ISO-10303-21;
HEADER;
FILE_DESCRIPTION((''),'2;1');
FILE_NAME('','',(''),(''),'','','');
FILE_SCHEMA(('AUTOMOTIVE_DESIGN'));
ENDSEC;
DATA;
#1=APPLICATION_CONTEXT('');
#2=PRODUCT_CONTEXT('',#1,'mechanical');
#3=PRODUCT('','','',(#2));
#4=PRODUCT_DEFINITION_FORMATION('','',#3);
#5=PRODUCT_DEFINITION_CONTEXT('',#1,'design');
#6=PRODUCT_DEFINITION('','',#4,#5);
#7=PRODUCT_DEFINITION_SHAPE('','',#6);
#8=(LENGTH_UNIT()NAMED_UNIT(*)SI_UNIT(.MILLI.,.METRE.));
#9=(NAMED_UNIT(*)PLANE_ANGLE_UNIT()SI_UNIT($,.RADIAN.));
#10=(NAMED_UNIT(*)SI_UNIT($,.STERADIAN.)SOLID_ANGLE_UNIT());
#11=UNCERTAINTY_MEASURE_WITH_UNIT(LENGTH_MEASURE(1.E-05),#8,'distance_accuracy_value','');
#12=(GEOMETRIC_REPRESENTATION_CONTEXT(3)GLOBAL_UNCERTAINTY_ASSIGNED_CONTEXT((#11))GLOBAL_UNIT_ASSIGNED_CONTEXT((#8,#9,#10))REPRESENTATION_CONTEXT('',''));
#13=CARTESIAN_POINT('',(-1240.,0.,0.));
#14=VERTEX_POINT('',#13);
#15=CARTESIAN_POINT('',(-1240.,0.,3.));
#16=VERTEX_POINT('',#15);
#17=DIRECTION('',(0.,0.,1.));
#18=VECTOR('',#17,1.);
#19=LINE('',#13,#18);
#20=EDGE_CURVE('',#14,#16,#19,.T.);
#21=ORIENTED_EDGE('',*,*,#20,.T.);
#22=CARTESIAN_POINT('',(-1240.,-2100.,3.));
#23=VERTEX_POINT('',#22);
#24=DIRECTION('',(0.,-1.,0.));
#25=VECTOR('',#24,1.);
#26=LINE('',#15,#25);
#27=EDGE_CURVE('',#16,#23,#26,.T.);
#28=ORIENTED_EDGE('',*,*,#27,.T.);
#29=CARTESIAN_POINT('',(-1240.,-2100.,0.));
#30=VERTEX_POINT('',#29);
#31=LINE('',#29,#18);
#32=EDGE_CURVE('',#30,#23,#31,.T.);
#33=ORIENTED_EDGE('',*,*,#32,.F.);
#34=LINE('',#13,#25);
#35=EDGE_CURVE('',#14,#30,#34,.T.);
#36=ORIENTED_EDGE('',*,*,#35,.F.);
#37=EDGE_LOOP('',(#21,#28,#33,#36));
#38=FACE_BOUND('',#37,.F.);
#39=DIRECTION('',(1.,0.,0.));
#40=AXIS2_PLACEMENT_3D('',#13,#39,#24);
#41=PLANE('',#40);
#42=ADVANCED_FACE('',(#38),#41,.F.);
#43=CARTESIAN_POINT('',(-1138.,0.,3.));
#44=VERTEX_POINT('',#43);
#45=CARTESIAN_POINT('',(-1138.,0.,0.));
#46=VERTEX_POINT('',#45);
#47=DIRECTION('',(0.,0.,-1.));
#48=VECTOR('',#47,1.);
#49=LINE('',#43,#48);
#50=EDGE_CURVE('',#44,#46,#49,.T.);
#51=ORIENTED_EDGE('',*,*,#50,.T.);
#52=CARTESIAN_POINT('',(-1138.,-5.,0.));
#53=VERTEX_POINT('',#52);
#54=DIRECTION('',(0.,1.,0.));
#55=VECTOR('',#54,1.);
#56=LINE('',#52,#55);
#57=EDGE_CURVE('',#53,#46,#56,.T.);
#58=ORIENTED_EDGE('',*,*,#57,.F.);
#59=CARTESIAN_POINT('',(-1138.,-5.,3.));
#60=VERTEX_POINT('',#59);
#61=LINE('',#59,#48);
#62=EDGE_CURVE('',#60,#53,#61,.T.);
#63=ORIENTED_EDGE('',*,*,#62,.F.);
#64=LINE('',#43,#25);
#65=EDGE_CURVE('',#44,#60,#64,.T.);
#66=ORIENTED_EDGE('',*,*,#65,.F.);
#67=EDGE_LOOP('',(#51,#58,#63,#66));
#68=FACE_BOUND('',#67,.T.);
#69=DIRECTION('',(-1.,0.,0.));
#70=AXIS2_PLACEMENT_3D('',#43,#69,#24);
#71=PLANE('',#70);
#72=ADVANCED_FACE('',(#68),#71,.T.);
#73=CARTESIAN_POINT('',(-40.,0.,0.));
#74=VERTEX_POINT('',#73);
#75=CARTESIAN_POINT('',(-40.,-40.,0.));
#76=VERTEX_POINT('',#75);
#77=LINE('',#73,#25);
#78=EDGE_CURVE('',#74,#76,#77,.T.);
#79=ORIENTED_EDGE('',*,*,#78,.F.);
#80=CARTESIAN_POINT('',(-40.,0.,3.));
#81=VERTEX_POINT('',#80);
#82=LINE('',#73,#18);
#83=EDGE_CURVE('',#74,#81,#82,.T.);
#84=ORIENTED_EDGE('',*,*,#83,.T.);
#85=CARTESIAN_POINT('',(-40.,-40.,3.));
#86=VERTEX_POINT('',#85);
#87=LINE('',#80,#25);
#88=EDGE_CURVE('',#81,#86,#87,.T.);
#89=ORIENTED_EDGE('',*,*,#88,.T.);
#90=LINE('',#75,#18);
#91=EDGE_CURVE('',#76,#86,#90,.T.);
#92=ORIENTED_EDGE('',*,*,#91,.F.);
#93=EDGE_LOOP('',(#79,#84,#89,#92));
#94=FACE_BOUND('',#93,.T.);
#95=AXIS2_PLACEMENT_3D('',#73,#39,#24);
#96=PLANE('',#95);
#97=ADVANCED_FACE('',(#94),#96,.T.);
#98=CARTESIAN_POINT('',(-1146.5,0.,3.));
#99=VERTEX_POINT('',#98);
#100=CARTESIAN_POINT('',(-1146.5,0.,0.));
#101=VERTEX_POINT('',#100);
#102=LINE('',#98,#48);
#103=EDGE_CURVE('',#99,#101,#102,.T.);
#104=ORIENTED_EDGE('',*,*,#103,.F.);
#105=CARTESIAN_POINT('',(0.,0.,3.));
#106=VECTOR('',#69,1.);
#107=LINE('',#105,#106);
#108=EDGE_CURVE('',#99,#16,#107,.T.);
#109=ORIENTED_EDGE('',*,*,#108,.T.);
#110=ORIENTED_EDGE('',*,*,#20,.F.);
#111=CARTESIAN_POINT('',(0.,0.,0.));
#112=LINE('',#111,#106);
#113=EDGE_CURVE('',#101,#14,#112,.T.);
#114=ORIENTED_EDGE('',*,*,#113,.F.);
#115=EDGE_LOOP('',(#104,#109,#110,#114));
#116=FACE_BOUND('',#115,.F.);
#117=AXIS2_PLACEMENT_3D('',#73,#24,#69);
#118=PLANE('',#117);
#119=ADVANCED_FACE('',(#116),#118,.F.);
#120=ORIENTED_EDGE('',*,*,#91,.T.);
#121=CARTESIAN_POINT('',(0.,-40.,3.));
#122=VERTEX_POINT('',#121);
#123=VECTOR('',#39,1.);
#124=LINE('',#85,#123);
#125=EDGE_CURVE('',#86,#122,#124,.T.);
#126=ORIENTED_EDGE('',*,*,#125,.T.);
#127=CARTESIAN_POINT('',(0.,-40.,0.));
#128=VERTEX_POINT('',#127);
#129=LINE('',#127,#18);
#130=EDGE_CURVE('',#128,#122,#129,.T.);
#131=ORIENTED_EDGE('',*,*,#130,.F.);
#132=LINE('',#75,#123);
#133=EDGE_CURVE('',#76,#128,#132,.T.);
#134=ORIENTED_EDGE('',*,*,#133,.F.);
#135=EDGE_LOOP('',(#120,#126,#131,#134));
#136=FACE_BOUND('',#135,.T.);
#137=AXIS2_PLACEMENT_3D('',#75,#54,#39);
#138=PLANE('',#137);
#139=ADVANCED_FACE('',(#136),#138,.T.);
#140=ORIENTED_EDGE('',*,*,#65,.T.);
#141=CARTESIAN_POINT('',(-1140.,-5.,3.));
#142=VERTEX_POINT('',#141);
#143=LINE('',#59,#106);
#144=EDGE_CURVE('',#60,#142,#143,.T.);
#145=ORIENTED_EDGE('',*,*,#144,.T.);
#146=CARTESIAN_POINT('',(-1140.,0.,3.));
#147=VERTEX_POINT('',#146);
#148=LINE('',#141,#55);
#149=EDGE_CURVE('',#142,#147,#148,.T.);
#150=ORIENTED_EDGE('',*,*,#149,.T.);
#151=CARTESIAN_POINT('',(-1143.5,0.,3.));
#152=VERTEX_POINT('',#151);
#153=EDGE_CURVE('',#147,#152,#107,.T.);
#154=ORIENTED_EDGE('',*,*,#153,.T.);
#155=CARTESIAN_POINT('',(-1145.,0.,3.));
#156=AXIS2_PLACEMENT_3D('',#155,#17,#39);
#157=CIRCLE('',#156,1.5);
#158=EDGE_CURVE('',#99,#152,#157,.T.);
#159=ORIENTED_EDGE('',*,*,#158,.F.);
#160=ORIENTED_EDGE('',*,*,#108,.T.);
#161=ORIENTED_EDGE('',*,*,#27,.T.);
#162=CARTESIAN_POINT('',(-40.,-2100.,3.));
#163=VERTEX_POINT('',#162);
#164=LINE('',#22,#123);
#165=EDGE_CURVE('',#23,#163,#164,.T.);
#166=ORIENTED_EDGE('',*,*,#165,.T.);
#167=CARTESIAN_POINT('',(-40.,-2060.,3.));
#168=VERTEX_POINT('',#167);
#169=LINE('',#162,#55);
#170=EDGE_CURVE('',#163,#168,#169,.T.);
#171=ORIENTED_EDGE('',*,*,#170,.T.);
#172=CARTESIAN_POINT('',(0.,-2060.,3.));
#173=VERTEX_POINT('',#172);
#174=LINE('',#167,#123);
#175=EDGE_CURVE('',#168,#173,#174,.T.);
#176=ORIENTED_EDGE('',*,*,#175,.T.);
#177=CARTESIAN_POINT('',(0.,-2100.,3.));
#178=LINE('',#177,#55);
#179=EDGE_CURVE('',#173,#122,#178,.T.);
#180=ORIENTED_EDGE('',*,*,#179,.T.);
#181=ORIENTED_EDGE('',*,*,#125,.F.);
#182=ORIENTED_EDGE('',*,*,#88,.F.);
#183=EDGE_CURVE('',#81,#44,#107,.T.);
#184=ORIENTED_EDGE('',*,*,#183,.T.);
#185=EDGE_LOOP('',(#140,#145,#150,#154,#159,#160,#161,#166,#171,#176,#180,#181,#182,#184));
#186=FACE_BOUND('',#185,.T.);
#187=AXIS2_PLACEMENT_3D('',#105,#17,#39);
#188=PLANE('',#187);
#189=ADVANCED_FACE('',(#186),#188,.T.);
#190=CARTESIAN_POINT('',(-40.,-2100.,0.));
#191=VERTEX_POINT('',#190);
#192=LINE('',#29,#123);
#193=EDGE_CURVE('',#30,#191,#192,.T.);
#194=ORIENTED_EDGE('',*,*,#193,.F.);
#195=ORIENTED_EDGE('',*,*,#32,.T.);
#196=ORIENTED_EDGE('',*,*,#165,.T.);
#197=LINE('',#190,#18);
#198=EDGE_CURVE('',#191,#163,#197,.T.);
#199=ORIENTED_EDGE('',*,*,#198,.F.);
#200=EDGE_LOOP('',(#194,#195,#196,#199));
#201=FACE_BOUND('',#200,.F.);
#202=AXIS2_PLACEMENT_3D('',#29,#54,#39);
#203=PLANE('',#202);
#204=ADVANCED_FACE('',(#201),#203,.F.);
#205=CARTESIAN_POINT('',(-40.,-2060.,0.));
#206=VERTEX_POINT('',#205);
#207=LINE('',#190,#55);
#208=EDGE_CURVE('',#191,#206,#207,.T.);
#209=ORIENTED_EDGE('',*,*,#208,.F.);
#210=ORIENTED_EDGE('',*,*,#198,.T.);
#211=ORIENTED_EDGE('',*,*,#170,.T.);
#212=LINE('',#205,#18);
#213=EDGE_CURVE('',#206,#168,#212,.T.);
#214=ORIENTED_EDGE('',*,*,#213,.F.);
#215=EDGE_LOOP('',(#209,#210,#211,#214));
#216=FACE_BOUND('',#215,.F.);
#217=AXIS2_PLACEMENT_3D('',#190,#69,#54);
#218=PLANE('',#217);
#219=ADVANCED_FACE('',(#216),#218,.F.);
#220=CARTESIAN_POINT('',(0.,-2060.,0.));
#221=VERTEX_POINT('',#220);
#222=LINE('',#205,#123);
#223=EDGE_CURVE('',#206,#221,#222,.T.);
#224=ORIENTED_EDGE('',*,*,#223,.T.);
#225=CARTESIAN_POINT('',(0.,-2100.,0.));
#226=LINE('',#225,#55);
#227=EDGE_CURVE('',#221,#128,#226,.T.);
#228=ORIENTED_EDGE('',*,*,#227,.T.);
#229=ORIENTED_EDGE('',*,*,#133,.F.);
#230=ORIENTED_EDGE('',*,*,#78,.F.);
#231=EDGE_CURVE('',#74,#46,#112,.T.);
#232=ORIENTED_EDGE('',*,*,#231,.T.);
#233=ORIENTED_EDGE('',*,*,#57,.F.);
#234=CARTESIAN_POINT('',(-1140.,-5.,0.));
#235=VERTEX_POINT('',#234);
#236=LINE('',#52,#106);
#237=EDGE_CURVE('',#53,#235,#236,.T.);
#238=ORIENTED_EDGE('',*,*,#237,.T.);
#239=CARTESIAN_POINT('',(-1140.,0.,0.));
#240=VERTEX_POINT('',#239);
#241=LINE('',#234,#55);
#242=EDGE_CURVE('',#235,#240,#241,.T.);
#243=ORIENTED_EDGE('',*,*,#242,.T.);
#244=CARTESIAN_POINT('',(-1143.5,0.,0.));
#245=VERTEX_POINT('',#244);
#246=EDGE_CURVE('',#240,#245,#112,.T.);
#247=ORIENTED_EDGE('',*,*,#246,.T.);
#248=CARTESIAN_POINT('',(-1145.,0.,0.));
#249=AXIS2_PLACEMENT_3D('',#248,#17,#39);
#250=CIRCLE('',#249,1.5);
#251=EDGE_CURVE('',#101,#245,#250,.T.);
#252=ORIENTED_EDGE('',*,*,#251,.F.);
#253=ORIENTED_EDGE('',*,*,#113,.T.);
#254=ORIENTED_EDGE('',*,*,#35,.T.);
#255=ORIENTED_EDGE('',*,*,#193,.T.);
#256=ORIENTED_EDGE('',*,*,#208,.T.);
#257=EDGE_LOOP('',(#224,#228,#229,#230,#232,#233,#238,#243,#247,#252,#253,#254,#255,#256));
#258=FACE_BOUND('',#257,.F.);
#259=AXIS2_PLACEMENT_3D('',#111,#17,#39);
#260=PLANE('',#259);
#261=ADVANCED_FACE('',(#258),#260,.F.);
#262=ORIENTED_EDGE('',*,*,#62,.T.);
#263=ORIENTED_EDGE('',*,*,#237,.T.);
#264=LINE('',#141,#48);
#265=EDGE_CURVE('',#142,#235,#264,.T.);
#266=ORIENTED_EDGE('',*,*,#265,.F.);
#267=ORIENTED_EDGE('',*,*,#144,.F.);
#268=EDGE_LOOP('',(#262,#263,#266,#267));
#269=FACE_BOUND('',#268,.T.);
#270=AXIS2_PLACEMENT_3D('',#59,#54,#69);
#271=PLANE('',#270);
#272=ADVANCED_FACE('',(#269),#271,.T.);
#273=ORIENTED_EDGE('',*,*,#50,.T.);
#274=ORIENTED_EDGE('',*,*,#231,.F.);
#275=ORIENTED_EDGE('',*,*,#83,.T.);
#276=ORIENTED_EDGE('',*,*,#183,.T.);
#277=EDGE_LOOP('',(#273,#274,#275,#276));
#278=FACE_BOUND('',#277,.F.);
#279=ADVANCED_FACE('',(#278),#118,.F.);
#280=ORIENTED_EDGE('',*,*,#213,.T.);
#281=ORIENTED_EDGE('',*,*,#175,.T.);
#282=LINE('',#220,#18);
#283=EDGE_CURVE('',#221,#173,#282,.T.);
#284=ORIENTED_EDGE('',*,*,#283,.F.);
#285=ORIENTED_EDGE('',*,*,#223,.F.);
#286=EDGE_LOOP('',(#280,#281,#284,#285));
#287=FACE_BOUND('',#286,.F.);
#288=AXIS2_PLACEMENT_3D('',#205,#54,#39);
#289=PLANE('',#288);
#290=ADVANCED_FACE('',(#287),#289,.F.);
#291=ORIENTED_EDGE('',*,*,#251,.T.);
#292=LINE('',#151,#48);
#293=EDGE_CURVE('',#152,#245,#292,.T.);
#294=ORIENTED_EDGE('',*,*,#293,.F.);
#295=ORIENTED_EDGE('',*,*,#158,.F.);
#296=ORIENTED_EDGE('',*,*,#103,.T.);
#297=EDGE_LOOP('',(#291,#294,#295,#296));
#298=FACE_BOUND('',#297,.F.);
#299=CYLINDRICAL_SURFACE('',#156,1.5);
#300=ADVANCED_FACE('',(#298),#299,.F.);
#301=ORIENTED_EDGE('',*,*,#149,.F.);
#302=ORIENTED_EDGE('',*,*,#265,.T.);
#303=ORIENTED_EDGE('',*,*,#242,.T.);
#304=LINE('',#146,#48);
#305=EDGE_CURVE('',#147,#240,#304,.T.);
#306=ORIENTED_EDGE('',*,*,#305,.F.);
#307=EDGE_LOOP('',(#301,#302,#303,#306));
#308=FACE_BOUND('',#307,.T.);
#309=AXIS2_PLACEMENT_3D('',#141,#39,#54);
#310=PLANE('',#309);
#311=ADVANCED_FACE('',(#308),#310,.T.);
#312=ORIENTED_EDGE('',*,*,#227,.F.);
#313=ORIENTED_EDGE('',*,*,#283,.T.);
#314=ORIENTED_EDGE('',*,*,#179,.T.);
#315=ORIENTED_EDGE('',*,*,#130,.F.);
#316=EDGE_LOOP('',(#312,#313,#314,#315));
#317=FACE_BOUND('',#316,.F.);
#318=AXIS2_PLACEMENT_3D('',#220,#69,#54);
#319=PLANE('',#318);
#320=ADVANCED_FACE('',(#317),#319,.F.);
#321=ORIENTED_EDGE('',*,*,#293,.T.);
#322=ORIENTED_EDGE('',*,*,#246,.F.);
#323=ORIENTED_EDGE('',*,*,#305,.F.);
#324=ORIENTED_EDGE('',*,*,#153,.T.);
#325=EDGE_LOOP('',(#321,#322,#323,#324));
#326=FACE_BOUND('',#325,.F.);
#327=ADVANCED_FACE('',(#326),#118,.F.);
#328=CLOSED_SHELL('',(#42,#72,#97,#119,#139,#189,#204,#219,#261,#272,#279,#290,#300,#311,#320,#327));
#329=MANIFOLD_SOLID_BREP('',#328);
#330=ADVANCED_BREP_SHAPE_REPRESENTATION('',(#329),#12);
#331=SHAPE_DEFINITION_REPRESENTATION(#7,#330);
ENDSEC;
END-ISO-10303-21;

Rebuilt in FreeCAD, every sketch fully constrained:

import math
import FreeCAD as App
import Part
import Sketcher

V = App.Vector
Q = App.Units.Quantity

doc = App.newDocument("Part")
params = doc.addObject("Spreadsheet::Sheet", "Params")
for row, (alias, value) in enumerate([
    ("sketch1_width", "40 mm"),
    ("sketch1_height", "2100 mm"),
    ("pad1_length", "3 mm"),
    ("sketch2_radius", "1.5 mm"),
    ("sketch2_width", "2 mm"),
    ("sketch2_height", "5 mm"),
    ("pocket1_length", "3 mm"),
], start=1):
    params.set(f"A{row}", alias)
    params.set(f"B{row}", "=" + value)
    params.setAlias(f"B{row}", alias)

body = doc.addObject("PartDesign::Body", "Body")

sketch1 = body.newObject("Sketcher::SketchObject", "Sketch")
sketch1.AttachmentSupport = (doc.getObject("XY_Plane"), [""])
sketch1.MapMode = "FlatFace"
sketch1.addGeometry(Part.LineSegment(V(-40, -40, 0), V(-40, 0, 0)), False)
sketch1.addGeometry(Part.LineSegment(V(-40, 0, 0), V(-1240, 0, 0)), False)
sketch1.addGeometry(Part.LineSegment(V(-1240, 0, 0), V(-1240, -2100, 0)), False)
sketch1.addGeometry(Part.LineSegment(V(-1240, -2100, 0), V(-40, -2100, 0)), False)
sketch1.addGeometry(Part.LineSegment(V(-40, -2100, 0), V(-40, -2060, 0)), False)
sketch1.addGeometry(Part.LineSegment(V(-40, -2060, 0), V(0, -2060, 0)), False)
sketch1.addGeometry(Part.LineSegment(V(0, -2060, 0), V(0, -40, 0)), False)
sketch1.addGeometry(Part.LineSegment(V(0, -40, 0), V(-40, -40, 0)), False)
sketch1.addConstraint(Sketcher.Constraint("Coincident", 0, 2, 1, 1))
sketch1.addConstraint(Sketcher.Constraint("Coincident", 1, 2, 2, 1))
sketch1.addConstraint(Sketcher.Constraint("Coincident", 2, 2, 3, 1))
sketch1.addConstraint(Sketcher.Constraint("Coincident", 3, 2, 4, 1))
sketch1.addConstraint(Sketcher.Constraint("Coincident", 4, 2, 5, 1))
sketch1.addConstraint(Sketcher.Constraint("Coincident", 5, 2, 6, 1))
sketch1.addConstraint(Sketcher.Constraint("Coincident", 6, 2, 7, 1))
sketch1.addConstraint(Sketcher.Constraint("Coincident", 7, 2, 0, 1))
sketch1.addConstraint(Sketcher.Constraint("Vertical", 0))
sketch1.addConstraint(Sketcher.Constraint("Horizontal", 1))
sketch1.addConstraint(Sketcher.Constraint("Vertical", 2))
sketch1.addConstraint(Sketcher.Constraint("Horizontal", 3))
sketch1.addConstraint(Sketcher.Constraint("Vertical", 4))
sketch1.addConstraint(Sketcher.Constraint("Horizontal", 5))
sketch1.addConstraint(Sketcher.Constraint("Vertical", 6))
sketch1.addConstraint(Sketcher.Constraint("Horizontal", 7))
sketch1.addConstraint(Sketcher.Constraint("PointOnObject", 0, 2, -1))
sketch1.addConstraint(Sketcher.Constraint("PointOnObject", 5, 2, -2))
sketch1.addConstraint(Sketcher.Constraint("Vertical", 0, 2, 3, 2))
sketch1.addConstraint(Sketcher.Constraint("Equal", 7, 0))
sketch1.addConstraint(Sketcher.Constraint("Equal", 0, 4))
sketch1.addConstraint(Sketcher.Constraint("DistanceX", 5, 1, 5, 2, Q("40 mm")))
sketch1.addConstraint(Sketcher.Constraint("DistanceY", 2, 2, 2, 1, Q("2100 mm")))
sketch1.addConstraint(Sketcher.Constraint("DistanceX", 1, 2, -1, 1, Q("1240 mm")))
sketch1.setExpression("Constraints[21]", "Params.sketch1_width")
sketch1.setExpression("Constraints[22]", "Params.sketch1_height")
pad1 = body.newObject("PartDesign::Pad", "Pad")
pad1.Profile = sketch1
pad1.setExpression("Length", "Params.pad1_length")

sketch2 = body.newObject("Sketcher::SketchObject", "Sketch001")
sketch2.AttachmentSupport = (doc.getObject("XY_Plane"), [""])
sketch2.MapMode = "FlatFace"
sketch2.AttachmentOffset = App.Placement(V(0, 0, 3), App.Rotation())
sketch2.addGeometry(Part.LineSegment(V(-1143.5, 0, 0), V(-1146.5, 0, 0)), False)
sketch2.addGeometry(Part.ArcOfCircle(Part.Circle(V(-1145, 0, 0), V(0, 0, 1), 1.5), math.radians(180), math.radians(360)), False)
sketch2.addGeometry(Part.LineSegment(V(-1138, 0, 0), V(-1140, 0, 0)), False)
sketch2.addGeometry(Part.LineSegment(V(-1140, 0, 0), V(-1140, -5, 0)), False)
sketch2.addGeometry(Part.LineSegment(V(-1140, -5, 0), V(-1138, -5, 0)), False)
sketch2.addGeometry(Part.LineSegment(V(-1138, -5, 0), V(-1138, 0, 0)), False)
sketch2.addConstraint(Sketcher.Constraint("Coincident", 0, 1, 1, 2))
sketch2.addConstraint(Sketcher.Constraint("Coincident", 1, 1, 0, 2))
sketch2.addConstraint(Sketcher.Constraint("Coincident", 2, 2, 3, 1))
sketch2.addConstraint(Sketcher.Constraint("Coincident", 3, 2, 4, 1))
sketch2.addConstraint(Sketcher.Constraint("Coincident", 4, 2, 5, 1))
sketch2.addConstraint(Sketcher.Constraint("Coincident", 5, 2, 2, 1))
sketch2.addConstraint(Sketcher.Constraint("Horizontal", 0))
sketch2.addConstraint(Sketcher.Constraint("Horizontal", 2))
sketch2.addConstraint(Sketcher.Constraint("Vertical", 3))
sketch2.addConstraint(Sketcher.Constraint("Horizontal", 4))
sketch2.addConstraint(Sketcher.Constraint("Vertical", 5))
sketch2.addConstraint(Sketcher.Constraint("PointOnObject", 1, 3, -1))
sketch2.addConstraint(Sketcher.Constraint("PointOnObject", 0, 1, -1))
sketch2.addConstraint(Sketcher.Constraint("PointOnObject", 2, 2, -1))
sketch2.addConstraint(Sketcher.Constraint("Radius", 1, Q("1.5 mm")))
sketch2.addConstraint(Sketcher.Constraint("DistanceX", 2, 2, 2, 1, Q("2 mm")))
sketch2.addConstraint(Sketcher.Constraint("DistanceY", 3, 2, 3, 1, Q("5 mm")))
sketch2.addConstraint(Sketcher.Constraint("DistanceX", 1, 3, 2, 2, Q("5 mm")))
sketch2.addConstraint(Sketcher.Constraint("DistanceX", 1, 3, -1, 1, Q("1145 mm")))
sketch2.setExpression("Constraints[14]", "Params.sketch2_radius")
sketch2.setExpression("Constraints[15]", "Params.sketch2_width")
sketch2.setExpression("Constraints[16]", "Params.sketch2_height")
pocket1 = body.newObject("PartDesign::Pocket", "Pocket")
pocket1.Profile = sketch2
pocket1.setExpression("Length", "Params.pocket1_length")

doc.recompute()
